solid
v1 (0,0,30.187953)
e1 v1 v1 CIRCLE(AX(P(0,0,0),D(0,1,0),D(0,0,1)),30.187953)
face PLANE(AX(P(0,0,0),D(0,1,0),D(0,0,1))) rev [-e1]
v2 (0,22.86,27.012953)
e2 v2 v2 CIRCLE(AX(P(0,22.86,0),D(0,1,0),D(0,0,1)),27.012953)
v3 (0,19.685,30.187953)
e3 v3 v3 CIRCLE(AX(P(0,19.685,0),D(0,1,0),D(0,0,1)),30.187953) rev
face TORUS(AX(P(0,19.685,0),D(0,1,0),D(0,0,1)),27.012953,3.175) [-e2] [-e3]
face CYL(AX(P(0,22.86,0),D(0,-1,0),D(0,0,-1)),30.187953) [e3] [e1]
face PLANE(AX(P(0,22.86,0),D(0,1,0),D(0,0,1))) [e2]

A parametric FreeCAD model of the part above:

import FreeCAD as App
import Part
import Sketcher
from FreeCAD import Vector
Q = App.Units.Quantity


def edges_at(feature, points):
    """Names of the edges that pass closest to the given points."""
    edges = feature.Shape.Edges
    near = lambda p: min(range(len(edges)), key=lambda i: edges[i].distToShape(Part.Vertex(*p))[0])
    return sorted({f"Edge{near(p) + 1}" for p in points})

doc = App.newDocument("Part")
body = doc.addObject("PartDesign::Body", "Body")

sketch1 = body.newObject("Sketcher::SketchObject", "Sketch")
sketch1.AttachmentSupport = (doc.getObject("XZ_Plane"), [""])
sketch1.MapMode = "FlatFace"
sketch1.addGeometry(Part.Circle(Vector(0, 0, 0), Vector(0, 0, 1), 30.187953), False)
sketch1.addConstraint([
    Sketcher.Constraint("Coincident", 0, 3, -1, 1),
    Sketcher.Constraint("Diameter", 0, Q("60.375906 mm")),
])
pad1 = body.newObject("PartDesign::Pad", "Pad")
pad1.Profile = sketch1
pad1.Length = Q("0.9 in")
pad1.Reversed = True
doc.recompute()

fillet = body.newObject("PartDesign::Fillet", "Fillet")
fillet.Base = (pad1, edges_at(pad1, [(0, 22.86, -30.188)]))
fillet.Radius = Q("0.125 in")

doc.recompute()
